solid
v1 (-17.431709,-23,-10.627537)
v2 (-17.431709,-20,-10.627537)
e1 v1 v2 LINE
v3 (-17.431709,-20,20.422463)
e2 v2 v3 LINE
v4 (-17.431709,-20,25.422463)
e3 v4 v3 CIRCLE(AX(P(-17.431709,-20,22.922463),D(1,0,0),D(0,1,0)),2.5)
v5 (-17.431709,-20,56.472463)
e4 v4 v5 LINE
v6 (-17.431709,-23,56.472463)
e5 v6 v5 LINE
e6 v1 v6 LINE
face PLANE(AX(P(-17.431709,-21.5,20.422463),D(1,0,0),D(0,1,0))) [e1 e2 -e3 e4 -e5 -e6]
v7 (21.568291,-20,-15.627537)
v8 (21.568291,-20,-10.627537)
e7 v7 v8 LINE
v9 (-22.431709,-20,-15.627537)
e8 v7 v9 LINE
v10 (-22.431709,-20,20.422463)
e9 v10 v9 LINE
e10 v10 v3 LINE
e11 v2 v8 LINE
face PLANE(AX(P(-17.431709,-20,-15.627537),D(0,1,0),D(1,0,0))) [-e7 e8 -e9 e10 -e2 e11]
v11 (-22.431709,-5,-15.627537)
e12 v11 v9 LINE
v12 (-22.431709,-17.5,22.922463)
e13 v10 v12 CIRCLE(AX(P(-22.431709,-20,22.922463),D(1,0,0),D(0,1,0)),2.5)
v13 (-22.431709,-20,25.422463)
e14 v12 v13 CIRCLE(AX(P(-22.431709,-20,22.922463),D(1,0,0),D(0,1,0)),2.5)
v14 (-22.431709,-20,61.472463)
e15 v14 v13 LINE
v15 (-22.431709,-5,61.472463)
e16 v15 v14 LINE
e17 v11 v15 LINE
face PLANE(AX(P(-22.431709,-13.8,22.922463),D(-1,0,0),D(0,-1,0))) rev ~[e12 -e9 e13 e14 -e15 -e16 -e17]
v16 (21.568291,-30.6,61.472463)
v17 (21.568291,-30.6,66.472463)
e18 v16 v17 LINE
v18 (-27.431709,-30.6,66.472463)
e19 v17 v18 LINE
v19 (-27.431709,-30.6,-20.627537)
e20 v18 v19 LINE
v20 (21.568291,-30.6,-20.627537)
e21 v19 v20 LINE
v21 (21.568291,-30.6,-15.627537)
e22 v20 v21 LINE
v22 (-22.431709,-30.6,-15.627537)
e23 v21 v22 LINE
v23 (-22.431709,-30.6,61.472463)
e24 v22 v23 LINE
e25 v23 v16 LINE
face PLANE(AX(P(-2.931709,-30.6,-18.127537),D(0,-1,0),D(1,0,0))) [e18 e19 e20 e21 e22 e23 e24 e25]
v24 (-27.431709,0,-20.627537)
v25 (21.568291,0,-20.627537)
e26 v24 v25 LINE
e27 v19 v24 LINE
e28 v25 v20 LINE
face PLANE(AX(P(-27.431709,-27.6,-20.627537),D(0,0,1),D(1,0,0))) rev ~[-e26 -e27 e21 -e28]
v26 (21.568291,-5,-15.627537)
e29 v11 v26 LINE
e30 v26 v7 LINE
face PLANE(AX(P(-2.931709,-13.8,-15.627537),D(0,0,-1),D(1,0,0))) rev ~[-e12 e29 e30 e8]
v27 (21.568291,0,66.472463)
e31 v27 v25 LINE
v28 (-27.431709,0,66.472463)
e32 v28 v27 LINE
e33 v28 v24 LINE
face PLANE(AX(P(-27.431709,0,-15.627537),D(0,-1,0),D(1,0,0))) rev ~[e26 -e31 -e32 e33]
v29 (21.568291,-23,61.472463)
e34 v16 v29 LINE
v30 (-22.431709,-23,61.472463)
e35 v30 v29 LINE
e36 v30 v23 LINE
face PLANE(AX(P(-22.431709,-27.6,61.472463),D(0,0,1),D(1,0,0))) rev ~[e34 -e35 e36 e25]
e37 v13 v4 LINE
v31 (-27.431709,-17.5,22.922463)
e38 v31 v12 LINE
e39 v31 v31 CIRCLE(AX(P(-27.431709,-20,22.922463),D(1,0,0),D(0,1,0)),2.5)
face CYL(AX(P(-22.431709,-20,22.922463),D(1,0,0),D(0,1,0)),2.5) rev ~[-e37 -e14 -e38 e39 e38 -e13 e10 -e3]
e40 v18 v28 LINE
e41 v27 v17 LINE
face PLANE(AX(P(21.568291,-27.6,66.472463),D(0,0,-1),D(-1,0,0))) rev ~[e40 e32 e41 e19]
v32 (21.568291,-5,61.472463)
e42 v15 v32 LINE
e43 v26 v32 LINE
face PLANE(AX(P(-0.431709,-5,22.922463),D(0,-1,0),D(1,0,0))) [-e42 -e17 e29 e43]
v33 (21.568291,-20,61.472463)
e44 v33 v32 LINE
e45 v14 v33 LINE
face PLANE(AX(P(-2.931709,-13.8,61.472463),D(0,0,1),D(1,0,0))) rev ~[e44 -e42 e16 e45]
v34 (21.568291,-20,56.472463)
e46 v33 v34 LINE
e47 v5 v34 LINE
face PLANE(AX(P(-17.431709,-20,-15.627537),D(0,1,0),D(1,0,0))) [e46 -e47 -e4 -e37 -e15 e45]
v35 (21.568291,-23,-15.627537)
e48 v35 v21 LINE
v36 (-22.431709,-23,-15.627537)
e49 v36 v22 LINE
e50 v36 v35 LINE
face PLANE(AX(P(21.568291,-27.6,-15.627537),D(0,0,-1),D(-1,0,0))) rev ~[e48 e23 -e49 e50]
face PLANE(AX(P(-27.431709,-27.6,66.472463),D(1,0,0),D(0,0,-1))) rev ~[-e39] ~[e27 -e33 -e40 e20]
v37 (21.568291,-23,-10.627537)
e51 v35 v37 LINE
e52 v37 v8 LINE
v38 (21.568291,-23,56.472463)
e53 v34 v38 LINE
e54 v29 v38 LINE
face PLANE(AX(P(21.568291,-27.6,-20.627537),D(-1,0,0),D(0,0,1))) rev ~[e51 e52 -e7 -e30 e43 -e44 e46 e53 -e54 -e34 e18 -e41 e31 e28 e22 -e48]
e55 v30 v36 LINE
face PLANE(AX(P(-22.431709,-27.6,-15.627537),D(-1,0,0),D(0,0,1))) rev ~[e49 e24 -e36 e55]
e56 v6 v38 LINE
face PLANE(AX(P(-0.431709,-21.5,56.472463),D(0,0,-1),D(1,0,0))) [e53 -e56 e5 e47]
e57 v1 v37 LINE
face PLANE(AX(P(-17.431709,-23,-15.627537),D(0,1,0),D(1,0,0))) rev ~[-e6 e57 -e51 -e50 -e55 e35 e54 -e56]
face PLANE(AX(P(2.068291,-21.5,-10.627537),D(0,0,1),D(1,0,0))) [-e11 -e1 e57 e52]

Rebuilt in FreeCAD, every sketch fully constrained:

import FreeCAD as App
import Part
import Sketcher

doc = App.newDocument("Part")
body = doc.addObject("PartDesign::Body", "Body")

# Sketch on XZ plane
sketch1 = body.newObject("Sketcher::SketchObject", "Sketch")
sketch1.AttachmentSupport = (doc.getObject("XZ_Plane"), [""])
sketch1.MapMode = "FlatFace"
sketch1.addGeometry([
    Part.LineSegment(App.Vector(-22, 61, 0), App.Vector(-22, -16, 0)),
    Part.LineSegment(App.Vector(-22, -16, 0), App.Vector(22, -16, 0)),
    Part.LineSegment(App.Vector(22, -16, 0), App.Vector(22, 61, 0)),
    Part.LineSegment(App.Vector(22, 61, 0), App.Vector(-22, 61, 0)),
], False)
sketch1.addConstraint([
    Sketcher.Constraint("Coincident", 0, 2, 1, 1),
    Sketcher.Constraint("Coincident", 1, 2, 2, 1),
    Sketcher.Constraint("Coincident", 2, 2, 3, 1),
    Sketcher.Constraint("Coincident", 3, 2, 0, 1),
    Sketcher.Constraint("Vertical", 0),
    Sketcher.Constraint("Horizontal", 1),
    Sketcher.Constraint("Vertical", 2),
    Sketcher.Constraint("Horizontal", 3),
    Sketcher.Constraint("DistanceX", 1, 1, 1, 2, 44.0),
    Sketcher.Constraint("DistanceY", 0, 2, 0, 1, 77.1),
    Sketcher.Constraint("DistanceX", 0, 2, -1, 1, 22.431709),
    Sketcher.Constraint("DistanceY", 0, 2, -1, 1, 15.627537),
])
pad1 = body.newObject("PartDesign::Pad", "Pad")
pad1.Profile = sketch1
pad1.Length = 5

# Sketch on YZ plane
sketch2 = body.newObject("Sketcher::SketchObject", "Sketch001")
sketch2.AttachmentSupport = (doc.getObject("YZ_Plane"), [""])
sketch2.MapMode = "FlatFace"
sketch2.AttachmentOffset = App.Placement(App.Vector(0, 0, -22.431709), App.Rotation())
sketch2.addGeometry([
    Part.LineSegment(App.Vector(0, 61, 0), App.Vector(0, -16, 0)),
    Part.LineSegment(App.Vector(0, -16, 0), App.Vector(-28, -16, 0)),
    Part.LineSegment(App.Vector(-28, -16, 0), App.Vector(-28, 61, 0)),
    Part.LineSegment(App.Vector(-28, 61, 0), App.Vector(0, 61, 0)),
], False)
sketch2.addConstraint([
    Sketcher.Constraint("Coincident", 0, 2, 1, 1),
    Sketcher.Constraint("Coincident", 1, 2, 2, 1),
    Sketcher.Constraint("Coincident", 2, 2, 3, 1),
    Sketcher.Constraint("Coincident", 3, 2, 0, 1),
    Sketcher.Constraint("Vertical", 0),
    Sketcher.Constraint("Horizontal", 1),
    Sketcher.Constraint("Vertical", 2),
    Sketcher.Constraint("Horizontal", 3),
    Sketcher.Constraint("PointOnObject", 0, 2, -2),
    Sketcher.Constraint("DistanceX", 1, 2, 1, 1, 27.6),
    Sketcher.Constraint("DistanceY", 0, 2, 0, 1, 77.1),
    Sketcher.Constraint("DistanceY", 0, 2, -1, 1, 15.627537),
])
pad2 = body.newObject("PartDesign::Pad", "Pad001")
pad2.Profile = sketch2
pad2.Length = 5
pad2.Reversed = True

# Sketch on XY plane
sketch3 = body.newObject("Sketcher::SketchObject", "Sketch002")
sketch3.AttachmentSupport = (doc.getObject("XY_Plane"), [""])
sketch3.MapMode = "FlatFace"
sketch3.AttachmentOffset = App.Placement(App.Vector(0, 0, 61.472463), App.Rotation())
sketch3.addGeometry([
    Part.LineSegment(App.Vector(-27, 0, 0), App.Vector(-27, -28, 0)),
    Part.LineSegment(App.Vector(-27, -28, 0), App.Vector(22, -28, 0)),
    Part.LineSegment(App.Vector(22, -28, 0), App.Vector(22, 0, 0)),
    Part.LineSegment(App.Vector(22, 0, 0), App.Vector(-27, 0, 0)),
], False)
sketch3.addConstraint([
    Sketcher.Constraint("Coincident", 0, 2, 1, 1),
    Sketcher.Constraint("Coincident", 1, 2, 2, 1),
    Sketcher.Constraint("Coincident", 2, 2, 3, 1),
    Sketcher.Constraint("Coincident", 3, 2, 0, 1),
    Sketcher.Constraint("Vertical", 0),
    Sketcher.Constraint("Horizontal", 1),
    Sketcher.Constraint("Vertical", 2),
    Sketcher.Constraint("Horizontal", 3),
    Sketcher.Constraint("PointOnObject", 2, 2, -1),
    Sketcher.Constraint("DistanceX", 1, 1, 1, 2, 49.0),
    Sketcher.Constraint("DistanceY", 0, 2, 0, 1, 27.6),
    Sketcher.Constraint("DistanceX", 0, 2, -1, 1, 27.431709),
])
pad3 = body.newObject("PartDesign::Pad", "Pad002")
pad3.Profile = sketch3
pad3.Length = 5

# Sketch on XY plane
sketch4 = body.newObject("Sketcher::SketchObject", "Sketch003")
sketch4.AttachmentSupport = (doc.getObject("XY_Plane"), [""])
sketch4.MapMode = "FlatFace"
sketch4.AttachmentOffset = App.Placement(App.Vector(0, 0, -15.627537), App.Rotation())
sketch4.addGeometry([
    Part.LineSegment(App.Vector(-27, -28, 0), App.Vector(-27, 0, 0)),
    Part.LineSegment(App.Vector(-27, 0, 0), App.Vector(22, 0, 0)),
    Part.LineSegment(App.Vector(22, 0, 0), App.Vector(22, -28, 0)),
    Part.LineSegment(App.Vector(22, -28, 0), App.Vector(-27, -28, 0)),
], False)
sketch4.addConstraint([
    Sketcher.Constraint("Coincident", 0, 2, 1, 1),
    Sketcher.Constraint("Coincident", 1, 2, 2, 1),
    Sketcher.Constraint("Coincident", 2, 2, 3, 1),
    Sketcher.Constraint("Coincident", 3, 2, 0, 1),
    Sketcher.Constraint("Vertical", 0),
    Sketcher.Constraint("Horizontal", 1),
    Sketcher.Constraint("Vertical", 2),
    Sketcher.Constraint("Horizontal", 3),
    Sketcher.Constraint("PointOnObject", 0, 2, -1),
    Sketcher.Constraint("DistanceX", 1, 1, 1, 2, 49.0),
    Sketcher.Constraint("DistanceY", 0, 1, 0, 2, 27.6),
    Sketcher.Constraint("DistanceX", 0, 2, -1, 1, 27.431709),
])
pad4 = body.newObject("PartDesign::Pad", "Pad003")
pad4.Profile = sketch4
pad4.Length = 5
pad4.Reversed = True

# Sketch on XY plane
sketch5 = body.newObject("Sketcher::SketchObject", "Sketch004")
sketch5.AttachmentSupport = (doc.getObject("XY_Plane"), [""])
sketch5.MapMode = "FlatFace"
sketch5.AttachmentOffset = App.Placement(App.Vector(0, 0, 61.472463), App.Rotation())
sketch5.addGeometry([
    Part.LineSegment(App.Vector(-22.4, -23, 0), App.Vector(-22.4, -20, 0)),
    Part.LineSegment(App.Vector(-22.4, -20, 0), App.Vector(21.6, -20, 0)),
    Part.LineSegment(App.Vector(21.6, -20, 0), App.Vector(21.6, -23, 0)),
    Part.LineSegment(App.Vector(21.6, -23, 0), App.Vector(-22.4, -23, 0)),
], False)
sketch5.addConstraint([
    Sketcher.Constraint("Coincident", 0, 2, 1, 1),
    Sketcher.Constraint("Coincident", 1, 2, 2, 1),
    Sketcher.Constraint("Coincident", 2, 2, 3, 1),
    Sketcher.Constraint("Coincident", 3, 2, 0, 1),
    Sketcher.Constraint("Vertical", 0),
    Sketcher.Constraint("Horizontal", 1),
    Sketcher.Constraint("Vertical", 2),
    Sketcher.Constraint("Horizontal", 3),
    Sketcher.Constraint("DistanceX", 1, 1, 1, 2, 44.0),
    Sketcher.Constraint("DistanceY", 0, 1, 0, 2, 3.0),
    Sketcher.Constraint("DistanceY", 0, 2, -1, 1, 20.0),
    Sketcher.Constraint("DistanceX", 0, 2, -1, 1, 22.431709),
])
pad5 = body.newObject("PartDesign::Pad", "Pad004")
pad5.Profile = sketch5
pad5.Length = 5
pad5.Reversed = True

# Sketch on YZ plane
sketch6 = body.newObject("Sketcher::SketchObject", "Sketch005")
sketch6.AttachmentSupport = (doc.getObject("YZ_Plane"), [""])
sketch6.MapMode = "FlatFace"
sketch6.AttachmentOffset = App.Placement(App.Vector(0, 0, -22.431709), App.Rotation())
sketch6.addGeometry([
    Part.LineSegment(App.Vector(-23, 56.5, 0), App.Vector(-23, -15.6, 0)),
    Part.LineSegment(App.Vector(-23, -15.6, 0), App.Vector(-20, -15.6, 0)),
    Part.LineSegment(App.Vector(-20, -15.6, 0), App.Vector(-20, 56.5, 0)),
    Part.LineSegment(App.Vector(-20, 56.5, 0), App.Vector(-23, 56.5, 0)),
], False)
sketch6.addConstraint([
    Sketcher.Constraint("Coincident", 0, 2, 1, 1),
    Sketcher.Constraint("Coincident", 1, 2, 2, 1),
    Sketcher.Constraint("Coincident", 2, 2, 3, 1),
    Sketcher.Constraint("Coincident", 3, 2, 0, 1),
    Sketcher.Constraint("Vertical", 0),
    Sketcher.Constraint("Horizontal", 1),
    Sketcher.Constraint("Vertical", 2),
    Sketcher.Constraint("Horizontal", 3),
    Sketcher.Constraint("DistanceX", 1, 1, 1, 2, 3.0),
    Sketcher.Constraint("DistanceY", 0, 2, 0, 1, 72.1),
    Sketcher.Constraint("DistanceX", 0, 2, -1, 1, 23.0),
    Sketcher.Constraint("DistanceY", 0, 2, -1, 1, 15.627537),
])
pad6 = body.newObject("PartDesign::Pad", "Pad005")
pad6.Profile = sketch6
pad6.Length = 5

# Sketch on XY plane
sketch7 = body.newObject("Sketcher::SketchObject", "Sketch006")
sketch7.AttachmentSupport = (doc.getObject("XY_Plane"), [""])
sketch7.MapMode = "FlatFace"
sketch7.AttachmentOffset = App.Placement(App.Vector(0, 0, -15.627537), App.Rotation())
sketch7.addGeometry([
    Part.LineSegment(App.Vector(-17.4, -20, 0), App.Vector(-17.4, -23, 0)),
    Part.LineSegment(App.Vector(-17.4, -23, 0), App.Vector(21.6, -23, 0)),
    Part.LineSegment(App.Vector(21.6, -23, 0), App.Vector(21.6, -20, 0)),
    Part.LineSegment(App.Vector(21.6, -20, 0), App.Vector(-17.4, -20, 0)),
], False)
sketch7.addConstraint([
    Sketcher.Constraint("Coincident", 0, 2, 1, 1),
    Sketcher.Constraint("Coincident", 1, 2, 2, 1),
    Sketcher.Constraint("Coincident", 2, 2, 3, 1),
    Sketcher.Constraint("Coincident", 3, 2, 0, 1),
    Sketcher.Constraint("Vertical", 0),
    Sketcher.Constraint("Horizontal", 1),
    Sketcher.Constraint("Vertical", 2),
    Sketcher.Constraint("Horizontal", 3),
    Sketcher.Constraint("DistanceX", 1, 1, 1, 2, 39.0),
    Sketcher.Constraint("DistanceY", 0, 2, 0, 1, 3.0),
    Sketcher.Constraint("DistanceY", 0, 2, -1, 1, 23.0),
    Sketcher.Constraint("DistanceX", 0, 2, -1, 1, 17.431709),
])
pad7 = body.newObject("PartDesign::Pad", "Pad006")
pad7.Profile = sketch7
pad7.Length = 5

# Sketch on XZ plane
sketch8 = body.newObject("Sketcher::SketchObject", "Sketch007")
sketch8.AttachmentSupport = (doc.getObject("XZ_Plane"), [""])
sketch8.MapMode = "FlatFace"
sketch8.AttachmentOffset = App.Placement(App.Vector(0, 0, 27.6), App.Rotation())
sketch8.addGeometry([
    Part.LineSegment(App.Vector(-27, -21, 0), App.Vector(22, -21, 0)),  # 0
    Part.LineSegment(App.Vector(22, -21, 0), App.Vector(22, -16, 0)),  # 1
    Part.LineSegment(App.Vector(22, -16, 0), App.Vector(-22, -16, 0)),  # 2
    Part.LineSegment(App.Vector(-22, -16, 0), App.Vector(-22, 61, 0)),  # 3
    Part.LineSegment(App.Vector(-22, 61, 0), App.Vector(22, 61, 0)),  # 4
    Part.LineSegment(App.Vector(22, 61, 0), App.Vector(22, 66, 0)),  # 5
    Part.LineSegment(App.Vector(22, 66, 0), App.Vector(-27, 66, 0)),  # 6
    Part.LineSegment(App.Vector(-27, 66, 0), App.Vector(-27, -21, 0)),  # 7
], False)
sketch8.addConstraint([
    Sketcher.Constraint("Coincident", 0, 2, 1, 1),
    Sketcher.Constraint("Coincident", 1, 2, 2, 1),
    Sketcher.Constraint("Coincident", 2, 2, 3, 1),
    Sketcher.Constraint("Coincident", 3, 2, 4, 1),
    Sketcher.Constraint("Coincident", 4, 2, 5, 1),
    Sketcher.Constraint("Coincident", 5, 2, 6, 1),
    Sketcher.Constraint("Coincident", 6, 2, 7, 1),
    Sketcher.Constraint("Coincident", 7, 2, 0, 1),
    Sketcher.Constraint("Horizontal", 0),
    Sketcher.Constraint("Vertical", 1),
    Sketcher.Constraint("Horizontal", 2),
    Sketcher.Constraint("Vertical", 3),
    Sketcher.Constraint("Horizontal", 4),
    Sketcher.Constraint("Vertical", 5),
    Sketcher.Constraint("Horizontal", 6),
    Sketcher.Constraint("Vertical", 7),
    Sketcher.Constraint("Vertical", 1, 2, 4, 2),
    Sketcher.Constraint("Equal", 1, 5),
    Sketcher.Constraint("DistanceX", 0, 1, 0, 2, 49.0),
    Sketcher.Constraint("DistanceX", 2, 2, 2, 1, 44.0),
    Sketcher.Constraint("DistanceY", 1, 1, 1, 2, 5.0),
    Sketcher.Constraint("DistanceY", 3, 1, 3, 2, 77.1),
    Sketcher.Constraint("DistanceX", -1, 1, 0, 2, 21.568291),
    Sketcher.Constraint("DistanceY", 0, 2, -1, 1, 20.627537),
])
pad8 = body.newObject("PartDesign::Pad", "Pad007")
pad8.Profile = sketch8
pad8.Length = 3

# Sketch on YZ plane
sketch9 = body.newObject("Sketcher::SketchObject", "Sketch008")
sketch9.AttachmentSupport = (doc.getObject("YZ_Plane"), [""])
sketch9.MapMode = "FlatFace"
sketch9.AttachmentOffset = App.Placement(App.Vector(0, 0, -22.431709), App.Rotation())
sketch9.addGeometry(Part.Circle(App.Vector(-20, 22.9, 0), App.Vector(0, 0, 1), 2.5), False)
sketch9.addConstraint([
    Sketcher.Constraint("Diameter", 0, 5.0),
    Sketcher.Constraint("DistanceX", 0, 3, -1, 1, 20.0),
    Sketcher.Constraint("DistanceY", -1, 1, 0, 3, 22.922463),
])
pocket1 = body.newObject("PartDesign::Pocket", "Pocket")
pocket1.Profile = sketch9
pocket1.Length = 25.4
pocket1.Midplane = True

doc.recompute()
